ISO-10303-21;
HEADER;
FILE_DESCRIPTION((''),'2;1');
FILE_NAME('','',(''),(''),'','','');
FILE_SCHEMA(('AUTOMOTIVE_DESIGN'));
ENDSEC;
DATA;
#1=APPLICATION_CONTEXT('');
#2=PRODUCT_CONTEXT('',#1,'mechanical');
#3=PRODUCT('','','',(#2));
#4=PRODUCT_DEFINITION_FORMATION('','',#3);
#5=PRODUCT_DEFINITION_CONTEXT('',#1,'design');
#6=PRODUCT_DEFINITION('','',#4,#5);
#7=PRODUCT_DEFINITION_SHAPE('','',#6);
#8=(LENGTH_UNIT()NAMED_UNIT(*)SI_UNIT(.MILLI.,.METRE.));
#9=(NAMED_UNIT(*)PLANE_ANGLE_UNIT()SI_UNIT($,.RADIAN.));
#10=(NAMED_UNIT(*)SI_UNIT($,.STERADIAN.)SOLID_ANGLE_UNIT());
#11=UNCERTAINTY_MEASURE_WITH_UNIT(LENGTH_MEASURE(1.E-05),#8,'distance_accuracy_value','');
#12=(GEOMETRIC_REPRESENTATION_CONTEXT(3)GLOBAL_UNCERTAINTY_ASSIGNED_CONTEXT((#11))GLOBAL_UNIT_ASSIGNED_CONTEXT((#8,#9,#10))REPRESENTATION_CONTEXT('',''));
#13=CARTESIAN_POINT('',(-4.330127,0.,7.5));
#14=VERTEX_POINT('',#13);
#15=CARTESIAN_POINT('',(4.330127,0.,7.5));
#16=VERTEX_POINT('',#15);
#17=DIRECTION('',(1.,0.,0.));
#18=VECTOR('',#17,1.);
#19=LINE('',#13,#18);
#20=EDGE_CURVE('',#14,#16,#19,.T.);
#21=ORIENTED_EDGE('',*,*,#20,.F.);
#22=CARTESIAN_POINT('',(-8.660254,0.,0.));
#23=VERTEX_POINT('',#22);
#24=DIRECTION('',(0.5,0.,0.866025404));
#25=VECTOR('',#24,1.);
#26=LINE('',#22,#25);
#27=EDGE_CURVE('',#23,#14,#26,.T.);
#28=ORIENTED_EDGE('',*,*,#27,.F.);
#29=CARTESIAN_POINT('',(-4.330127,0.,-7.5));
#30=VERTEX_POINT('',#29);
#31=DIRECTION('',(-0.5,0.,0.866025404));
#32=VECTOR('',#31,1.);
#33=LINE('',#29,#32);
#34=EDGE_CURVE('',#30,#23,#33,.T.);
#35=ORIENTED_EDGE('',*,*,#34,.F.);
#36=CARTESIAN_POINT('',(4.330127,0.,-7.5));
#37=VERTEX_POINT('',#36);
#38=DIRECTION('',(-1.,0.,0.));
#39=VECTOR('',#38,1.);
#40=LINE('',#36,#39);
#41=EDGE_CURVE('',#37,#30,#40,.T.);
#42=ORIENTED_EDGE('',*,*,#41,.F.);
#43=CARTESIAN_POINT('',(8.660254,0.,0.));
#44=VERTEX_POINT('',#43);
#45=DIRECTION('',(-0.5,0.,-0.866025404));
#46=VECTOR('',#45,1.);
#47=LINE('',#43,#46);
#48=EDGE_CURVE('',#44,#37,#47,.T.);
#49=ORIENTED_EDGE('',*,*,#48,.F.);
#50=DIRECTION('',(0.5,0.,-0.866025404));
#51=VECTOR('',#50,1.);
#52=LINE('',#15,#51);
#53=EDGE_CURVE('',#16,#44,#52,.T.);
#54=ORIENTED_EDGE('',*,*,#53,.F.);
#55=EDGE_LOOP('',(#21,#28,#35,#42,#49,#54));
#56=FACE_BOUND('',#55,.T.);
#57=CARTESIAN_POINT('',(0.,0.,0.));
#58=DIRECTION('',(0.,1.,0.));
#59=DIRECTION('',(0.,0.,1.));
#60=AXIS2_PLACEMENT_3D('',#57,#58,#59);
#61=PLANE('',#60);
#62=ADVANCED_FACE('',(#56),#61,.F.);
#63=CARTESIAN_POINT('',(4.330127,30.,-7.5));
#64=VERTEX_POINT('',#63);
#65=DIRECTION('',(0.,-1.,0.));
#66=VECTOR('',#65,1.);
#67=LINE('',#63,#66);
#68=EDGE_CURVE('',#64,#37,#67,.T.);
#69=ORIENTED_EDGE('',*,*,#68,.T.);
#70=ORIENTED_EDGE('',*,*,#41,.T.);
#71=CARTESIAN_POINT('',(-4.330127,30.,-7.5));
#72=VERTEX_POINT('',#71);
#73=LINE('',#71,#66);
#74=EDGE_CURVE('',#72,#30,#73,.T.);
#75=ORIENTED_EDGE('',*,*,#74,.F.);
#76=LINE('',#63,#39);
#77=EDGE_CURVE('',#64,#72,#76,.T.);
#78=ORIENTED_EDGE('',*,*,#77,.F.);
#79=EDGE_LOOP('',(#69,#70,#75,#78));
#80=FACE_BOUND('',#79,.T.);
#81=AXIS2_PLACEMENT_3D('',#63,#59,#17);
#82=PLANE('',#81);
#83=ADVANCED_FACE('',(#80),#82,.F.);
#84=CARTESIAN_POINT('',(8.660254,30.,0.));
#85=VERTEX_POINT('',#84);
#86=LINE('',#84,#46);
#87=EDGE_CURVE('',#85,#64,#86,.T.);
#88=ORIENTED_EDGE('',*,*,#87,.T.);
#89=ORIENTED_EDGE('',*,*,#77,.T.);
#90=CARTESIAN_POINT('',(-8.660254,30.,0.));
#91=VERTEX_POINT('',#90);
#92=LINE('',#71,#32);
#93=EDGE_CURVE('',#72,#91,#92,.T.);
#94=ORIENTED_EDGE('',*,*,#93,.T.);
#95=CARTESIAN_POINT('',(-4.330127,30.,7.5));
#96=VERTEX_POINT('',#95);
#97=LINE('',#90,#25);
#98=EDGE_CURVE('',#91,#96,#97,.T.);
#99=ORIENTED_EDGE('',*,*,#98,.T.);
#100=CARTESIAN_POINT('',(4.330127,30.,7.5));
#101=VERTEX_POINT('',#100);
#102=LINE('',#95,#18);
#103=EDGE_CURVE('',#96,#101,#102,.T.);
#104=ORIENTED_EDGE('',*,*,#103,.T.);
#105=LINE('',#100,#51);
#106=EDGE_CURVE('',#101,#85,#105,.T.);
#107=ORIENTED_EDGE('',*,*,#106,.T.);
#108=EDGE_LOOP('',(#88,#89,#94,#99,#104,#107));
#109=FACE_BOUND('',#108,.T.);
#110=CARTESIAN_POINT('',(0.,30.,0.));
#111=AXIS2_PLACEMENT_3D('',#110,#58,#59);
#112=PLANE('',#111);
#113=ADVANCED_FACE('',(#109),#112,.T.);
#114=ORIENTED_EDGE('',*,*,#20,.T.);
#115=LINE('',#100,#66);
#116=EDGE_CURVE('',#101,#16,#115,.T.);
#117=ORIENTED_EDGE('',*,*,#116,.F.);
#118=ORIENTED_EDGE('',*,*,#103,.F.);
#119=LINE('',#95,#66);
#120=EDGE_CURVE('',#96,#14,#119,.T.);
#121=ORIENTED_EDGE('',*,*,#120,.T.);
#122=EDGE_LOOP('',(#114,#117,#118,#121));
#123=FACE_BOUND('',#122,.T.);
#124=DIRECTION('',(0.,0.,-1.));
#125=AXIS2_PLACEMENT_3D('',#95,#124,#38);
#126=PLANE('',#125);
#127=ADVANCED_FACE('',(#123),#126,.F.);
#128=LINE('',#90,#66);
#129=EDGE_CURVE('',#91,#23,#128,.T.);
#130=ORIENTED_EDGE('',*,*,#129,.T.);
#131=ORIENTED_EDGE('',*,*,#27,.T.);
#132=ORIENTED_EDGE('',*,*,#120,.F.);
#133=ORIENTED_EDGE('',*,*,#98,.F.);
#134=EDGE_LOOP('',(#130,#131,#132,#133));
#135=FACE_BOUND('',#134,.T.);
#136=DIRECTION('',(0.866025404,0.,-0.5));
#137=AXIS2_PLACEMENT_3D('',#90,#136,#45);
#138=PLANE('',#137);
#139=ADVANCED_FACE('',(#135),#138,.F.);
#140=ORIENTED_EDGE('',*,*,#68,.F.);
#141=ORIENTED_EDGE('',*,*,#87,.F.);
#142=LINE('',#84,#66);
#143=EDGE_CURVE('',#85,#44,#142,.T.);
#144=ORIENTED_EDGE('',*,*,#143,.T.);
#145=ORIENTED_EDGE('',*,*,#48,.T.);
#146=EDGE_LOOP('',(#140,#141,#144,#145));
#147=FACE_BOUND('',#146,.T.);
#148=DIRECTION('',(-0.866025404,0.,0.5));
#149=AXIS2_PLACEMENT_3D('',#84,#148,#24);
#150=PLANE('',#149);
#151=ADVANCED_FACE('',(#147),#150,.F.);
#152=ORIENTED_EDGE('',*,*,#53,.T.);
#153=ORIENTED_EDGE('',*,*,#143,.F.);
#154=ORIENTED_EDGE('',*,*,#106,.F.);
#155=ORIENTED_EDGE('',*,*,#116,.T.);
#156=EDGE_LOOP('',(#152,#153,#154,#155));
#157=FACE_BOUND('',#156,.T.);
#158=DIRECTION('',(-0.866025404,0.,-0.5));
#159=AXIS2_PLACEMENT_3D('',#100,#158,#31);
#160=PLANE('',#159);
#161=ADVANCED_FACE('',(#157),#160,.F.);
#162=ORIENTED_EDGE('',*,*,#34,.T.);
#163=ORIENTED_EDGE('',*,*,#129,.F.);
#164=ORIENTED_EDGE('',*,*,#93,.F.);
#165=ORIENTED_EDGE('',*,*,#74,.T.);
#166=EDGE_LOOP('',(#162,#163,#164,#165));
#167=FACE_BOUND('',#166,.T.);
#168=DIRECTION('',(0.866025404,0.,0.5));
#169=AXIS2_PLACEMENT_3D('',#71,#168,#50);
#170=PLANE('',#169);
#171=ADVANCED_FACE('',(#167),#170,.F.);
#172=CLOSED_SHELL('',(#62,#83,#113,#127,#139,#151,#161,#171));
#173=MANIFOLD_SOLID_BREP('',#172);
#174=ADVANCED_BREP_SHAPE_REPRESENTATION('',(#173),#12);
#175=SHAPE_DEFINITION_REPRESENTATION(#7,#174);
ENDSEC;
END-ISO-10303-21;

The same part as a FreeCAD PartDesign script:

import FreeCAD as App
import Part
import Sketcher

V = App.Vector
Q = App.Units.Quantity

doc = App.newDocument("Part")
body = doc.addObject("PartDesign::Body", "Body")

# Sketch on XZ plane
sketch1 = body.newObject("Sketcher::SketchObject", "Sketch")
sketch1.AttachmentSupport = (doc.getObject("XZ_Plane"), [""])
sketch1.MapMode = "FlatFace"
sketch1.addGeometry([
    Part.LineSegment(V(8.660254, 0, 0), V(4.330127, -7.5, 0)),  # 0
    Part.LineSegment(V(4.330127, -7.5, 0), V(-4.330127, -7.5, 0)),  # 1
    Part.LineSegment(V(-4.330127, -7.5, 0), V(-8.660254, 0, 0)),  # 2
    Part.LineSegment(V(-8.660254, 0, 0), V(-4.330127, 7.5, 0)),  # 3
    Part.LineSegment(V(-4.330127, 7.5, 0), V(4.330127, 7.5, 0)),  # 4
    Part.LineSegment(V(4.330127, 7.5, 0), V(8.660254, 0, 0)),  # 5
], False)
sketch1.addConstraint([
    Sketcher.Constraint("Coincident", 0, 2, 1, 1),
    Sketcher.Constraint("Coincident", 1, 2, 2, 1),
    Sketcher.Constraint("Coincident", 2, 2, 3, 1),
    Sketcher.Constraint("Coincident", 3, 2, 4, 1),
    Sketcher.Constraint("Coincident", 4, 2, 5, 1),
    Sketcher.Constraint("Coincident", 5, 2, 0, 1),
    Sketcher.Constraint("Horizontal", 1),
    Sketcher.Constraint("Horizontal", 4),
    Sketcher.Constraint("Symmetric", 0, 2, 3, 2, -1, 1),
    Sketcher.Constraint("Symmetric", 2, 2, 5, 2, -1, 1),
    Sketcher.Constraint("PointOnObject", 2, 2, -1),
    Sketcher.Constraint("Parallel", 2, 5),
    Sketcher.Constraint("Vertical", 1, 2, 3, 2),
    Sketcher.Constraint("Angle", 0, Q("-120 deg")),
    Sketcher.Constraint("DistanceY", 1, 2, 3, 2, Q("15 mm")),
    Sketcher.Constraint("DistanceX", 1, 2, 1, 1, Q("8.660254 mm")),
])
pad1 = body.newObject("PartDesign::Pad", "Pad")
pad1.Profile = sketch1
pad1.Length = 30
pad1.Reversed = True

doc.recompute()
